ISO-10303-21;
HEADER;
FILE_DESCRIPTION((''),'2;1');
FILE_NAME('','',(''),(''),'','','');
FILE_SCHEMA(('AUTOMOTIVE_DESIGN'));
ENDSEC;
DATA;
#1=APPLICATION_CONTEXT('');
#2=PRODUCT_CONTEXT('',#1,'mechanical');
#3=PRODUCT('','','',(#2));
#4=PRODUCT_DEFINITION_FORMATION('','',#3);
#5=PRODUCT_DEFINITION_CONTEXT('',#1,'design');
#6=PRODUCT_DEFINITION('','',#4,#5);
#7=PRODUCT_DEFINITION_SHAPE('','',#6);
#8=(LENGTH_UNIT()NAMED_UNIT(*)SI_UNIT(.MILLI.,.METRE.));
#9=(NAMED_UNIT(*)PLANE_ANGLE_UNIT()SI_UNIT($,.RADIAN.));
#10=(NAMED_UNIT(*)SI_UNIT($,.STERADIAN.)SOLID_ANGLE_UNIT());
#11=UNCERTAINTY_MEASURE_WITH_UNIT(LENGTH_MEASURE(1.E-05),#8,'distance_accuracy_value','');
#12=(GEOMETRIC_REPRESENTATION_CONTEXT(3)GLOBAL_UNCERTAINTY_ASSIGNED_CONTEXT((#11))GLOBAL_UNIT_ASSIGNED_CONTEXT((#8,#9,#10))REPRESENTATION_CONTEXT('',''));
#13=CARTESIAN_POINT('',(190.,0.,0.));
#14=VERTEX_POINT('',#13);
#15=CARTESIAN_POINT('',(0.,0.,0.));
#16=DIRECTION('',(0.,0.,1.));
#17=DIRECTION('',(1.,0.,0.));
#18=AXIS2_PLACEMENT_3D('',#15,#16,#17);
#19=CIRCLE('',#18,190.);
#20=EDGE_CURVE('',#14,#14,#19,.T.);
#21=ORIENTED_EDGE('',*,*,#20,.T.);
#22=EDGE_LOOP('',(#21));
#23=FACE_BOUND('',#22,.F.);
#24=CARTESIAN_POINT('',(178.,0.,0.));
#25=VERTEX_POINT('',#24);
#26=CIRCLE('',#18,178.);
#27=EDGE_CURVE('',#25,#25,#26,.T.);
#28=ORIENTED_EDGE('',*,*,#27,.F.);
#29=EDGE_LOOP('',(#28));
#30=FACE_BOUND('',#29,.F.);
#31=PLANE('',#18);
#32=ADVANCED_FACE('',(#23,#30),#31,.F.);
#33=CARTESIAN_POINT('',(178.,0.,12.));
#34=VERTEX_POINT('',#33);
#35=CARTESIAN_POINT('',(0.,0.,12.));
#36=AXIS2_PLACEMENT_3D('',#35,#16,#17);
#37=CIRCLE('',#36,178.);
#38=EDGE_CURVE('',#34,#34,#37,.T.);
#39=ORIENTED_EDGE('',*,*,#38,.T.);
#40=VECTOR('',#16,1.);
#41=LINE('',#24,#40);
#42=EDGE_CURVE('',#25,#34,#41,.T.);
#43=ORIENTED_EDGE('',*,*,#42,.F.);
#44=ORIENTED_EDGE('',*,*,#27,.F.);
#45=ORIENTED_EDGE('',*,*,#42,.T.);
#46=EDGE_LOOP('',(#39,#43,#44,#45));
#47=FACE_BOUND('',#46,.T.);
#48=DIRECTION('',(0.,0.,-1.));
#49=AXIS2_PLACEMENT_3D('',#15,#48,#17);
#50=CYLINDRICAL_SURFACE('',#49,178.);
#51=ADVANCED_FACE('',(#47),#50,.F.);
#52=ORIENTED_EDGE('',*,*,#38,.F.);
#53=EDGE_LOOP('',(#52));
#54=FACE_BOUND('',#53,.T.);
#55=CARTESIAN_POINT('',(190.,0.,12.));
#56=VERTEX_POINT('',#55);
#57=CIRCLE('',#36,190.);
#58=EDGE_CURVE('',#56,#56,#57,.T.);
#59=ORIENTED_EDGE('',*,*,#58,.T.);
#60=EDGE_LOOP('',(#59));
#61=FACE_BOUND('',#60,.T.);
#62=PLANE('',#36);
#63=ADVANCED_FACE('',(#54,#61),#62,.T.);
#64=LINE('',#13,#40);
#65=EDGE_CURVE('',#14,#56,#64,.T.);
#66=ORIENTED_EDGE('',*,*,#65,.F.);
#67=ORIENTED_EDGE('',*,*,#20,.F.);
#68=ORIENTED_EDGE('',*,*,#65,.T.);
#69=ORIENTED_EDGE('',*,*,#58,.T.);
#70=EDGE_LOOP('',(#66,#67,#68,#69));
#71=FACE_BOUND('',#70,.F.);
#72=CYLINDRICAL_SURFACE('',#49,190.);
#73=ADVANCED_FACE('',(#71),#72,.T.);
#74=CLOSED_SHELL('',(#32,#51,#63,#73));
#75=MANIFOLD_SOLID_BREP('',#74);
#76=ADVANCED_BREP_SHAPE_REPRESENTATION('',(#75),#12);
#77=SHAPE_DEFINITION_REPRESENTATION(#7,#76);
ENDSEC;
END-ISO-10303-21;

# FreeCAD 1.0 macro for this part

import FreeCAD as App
import Part
import Sketcher
from FreeCAD import Vector
Q = App.Units.Quantity

doc = App.newDocument("Part")
body = doc.addObject("PartDesign::Body", "Body")

sketch1 = body.newObject("Sketcher::SketchObject", "Sketch")
sketch1.AttachmentSupport = (doc.getObject("XY_Plane"), [""])
sketch1.MapMode = "FlatFace"
sketch1.addGeometry(Part.Circle(Vector(0, 0, 0), Vector(0, 0, 1), 190), False)
sketch1.addGeometry(Part.Circle(Vector(0, 0, 0), Vector(0, 0, 1), 178), False)
sketch1.addConstraint(Sketcher.Constraint("Coincident", 0, 3, -1, 1))
sketch1.addConstraint(Sketcher.Constraint("Coincident", 1, 3, -1, 1))
sketch1.addConstraint(Sketcher.Constraint("Diameter", 0, Q("380 mm")))
sketch1.addConstraint(Sketcher.Constraint("Diameter", 1, Q("356 mm")))
pad1 = body.newObject("PartDesign::Pad", "Pad")
pad1.Profile = sketch1
pad1.Length = 12

doc.recompute()
